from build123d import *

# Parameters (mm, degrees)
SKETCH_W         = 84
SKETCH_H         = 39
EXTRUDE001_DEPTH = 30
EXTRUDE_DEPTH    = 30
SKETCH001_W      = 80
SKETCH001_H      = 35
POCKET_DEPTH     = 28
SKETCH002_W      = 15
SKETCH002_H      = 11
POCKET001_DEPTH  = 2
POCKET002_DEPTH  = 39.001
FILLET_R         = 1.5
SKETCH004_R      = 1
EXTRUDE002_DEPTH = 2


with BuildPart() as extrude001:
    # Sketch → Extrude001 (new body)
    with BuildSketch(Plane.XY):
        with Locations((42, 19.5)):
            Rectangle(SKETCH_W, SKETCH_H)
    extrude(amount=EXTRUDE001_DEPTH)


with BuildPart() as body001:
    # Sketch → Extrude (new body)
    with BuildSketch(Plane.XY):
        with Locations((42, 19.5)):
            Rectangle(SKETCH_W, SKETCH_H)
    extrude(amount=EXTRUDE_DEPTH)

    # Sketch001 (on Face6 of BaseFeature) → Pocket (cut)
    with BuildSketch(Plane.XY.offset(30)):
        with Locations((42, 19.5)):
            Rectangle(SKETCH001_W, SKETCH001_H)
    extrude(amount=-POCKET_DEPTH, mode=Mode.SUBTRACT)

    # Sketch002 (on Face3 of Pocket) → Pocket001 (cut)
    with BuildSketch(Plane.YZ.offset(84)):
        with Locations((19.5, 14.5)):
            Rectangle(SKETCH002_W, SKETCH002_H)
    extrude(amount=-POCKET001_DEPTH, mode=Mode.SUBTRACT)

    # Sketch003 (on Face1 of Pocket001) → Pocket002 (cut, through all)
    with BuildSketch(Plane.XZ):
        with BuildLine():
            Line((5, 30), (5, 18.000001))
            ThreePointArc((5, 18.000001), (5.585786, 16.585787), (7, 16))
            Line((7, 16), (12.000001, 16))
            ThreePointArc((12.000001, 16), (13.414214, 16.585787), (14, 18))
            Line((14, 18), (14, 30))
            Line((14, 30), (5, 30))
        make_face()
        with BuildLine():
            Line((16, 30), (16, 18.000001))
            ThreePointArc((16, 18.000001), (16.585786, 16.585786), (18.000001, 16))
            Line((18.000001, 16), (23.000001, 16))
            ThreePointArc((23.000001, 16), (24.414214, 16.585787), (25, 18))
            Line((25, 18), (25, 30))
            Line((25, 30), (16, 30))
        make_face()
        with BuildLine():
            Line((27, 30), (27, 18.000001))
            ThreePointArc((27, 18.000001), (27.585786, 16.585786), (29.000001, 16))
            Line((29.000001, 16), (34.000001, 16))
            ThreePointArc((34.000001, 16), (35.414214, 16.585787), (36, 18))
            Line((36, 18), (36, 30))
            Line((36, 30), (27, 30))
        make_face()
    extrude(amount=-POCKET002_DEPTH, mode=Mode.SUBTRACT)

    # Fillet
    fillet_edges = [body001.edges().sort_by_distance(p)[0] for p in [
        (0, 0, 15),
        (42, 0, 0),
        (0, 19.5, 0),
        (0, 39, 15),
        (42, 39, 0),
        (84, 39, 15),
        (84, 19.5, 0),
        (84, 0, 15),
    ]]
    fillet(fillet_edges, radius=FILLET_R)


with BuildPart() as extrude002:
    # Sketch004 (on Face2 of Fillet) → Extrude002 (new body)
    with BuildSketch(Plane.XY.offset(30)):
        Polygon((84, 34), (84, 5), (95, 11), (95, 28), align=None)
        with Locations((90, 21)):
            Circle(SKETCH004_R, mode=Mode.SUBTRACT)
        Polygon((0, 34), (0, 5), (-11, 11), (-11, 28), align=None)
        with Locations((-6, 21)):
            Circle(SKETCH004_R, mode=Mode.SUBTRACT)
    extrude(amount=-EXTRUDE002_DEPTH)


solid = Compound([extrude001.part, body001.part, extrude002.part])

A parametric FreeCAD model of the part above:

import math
import FreeCAD as App
import Part
import Sketcher
from FreeCAD import Vector
Q = App.Units.Quantity


def edges_at(feature, points):
    """Names of the edges that pass closest to the given points."""
    edges = feature.Shape.Edges
    near = lambda p: min(range(len(edges)), key=lambda i: edges[i].distToShape(Part.Vertex(*p))[0])
    return sorted({f"Edge{near(p) + 1}" for p in points})

doc = App.newDocument("Part")
params = doc.addObject("Spreadsheet::Sheet", "Params")
for row, (alias, value) in enumerate([
    ("sketch1_width", "84 mm"),
    ("sketch1_height", "39 mm"),
    ("pad1_length", "30 mm"),
    ("sketch2_width", "84 mm"),
    ("sketch2_height", "39 mm"),
    ("pad2_length", "30 mm"),
    ("sketch3_width", "80 mm"),
    ("sketch3_height", "35 mm"),
    ("pocket1_length", "28 mm"),
    ("sketch4_width", "15 mm"),
    ("sketch4_height", "11 mm"),
    ("pocket2_length", "2 mm"),
    ("sketch5_radius", "2 mm"),
    ("sketch5_width", "5.000001 mm"),
    ("sketch5_height", "11.999999 mm"),
    ("fillet_radius", "1.5 mm"),
    ("sketch6_diameter", "2 mm"),
    ("sketch6_height", "29 mm"),
    ("sketch6_height2", "17 mm"),
    ("pad3_length", "2 mm"),
], start=1):
    params.set(f"A{row}", alias)
    params.set(f"B{row}", "=" + value)
    params.setAlias(f"B{row}", alias)

body = doc.addObject("PartDesign::Body", "Body")

# Sketch on XY plane
sketch1 = doc.addObject("Sketcher::SketchObject", "Sketch")
body.addObject(sketch1)
sketch1.AttachmentSupport = (doc.XY_Plane, [""])
sketch1.MapMode = "FlatFace"
sketch1.addGeometry(Part.LineSegment(Vector(0, 39, 0), Vector(0, 0, 0)), False)
sketch1.addGeometry(Part.LineSegment(Vector(0, 0, 0), Vector(84, 0, 0)), False)
sketch1.addGeometry(Part.LineSegment(Vector(84, 0, 0), Vector(84, 39, 0)), False)
sketch1.addGeometry(Part.LineSegment(Vector(84, 39, 0), Vector(0, 39, 0)), False)
sketch1.addConstraint(Sketcher.Constraint("Coincident", 0, 2, 1, 1))
sketch1.addConstraint(Sketcher.Constraint("Coincident", 1, 2, 2, 1))
sketch1.addConstraint(Sketcher.Constraint("Coincident", 2, 2, 3, 1))
sketch1.addConstraint(Sketcher.Constraint("Coincident", 3, 2, 0, 1))
sketch1.addConstraint(Sketcher.Constraint("Vertical", 0))
sketch1.addConstraint(Sketcher.Constraint("Horizontal", 1))
sketch1.addConstraint(Sketcher.Constraint("Vertical", 2))
sketch1.addConstraint(Sketcher.Constraint("Horizontal", 3))
sketch1.addConstraint(Sketcher.Constraint("Coincident", 0, 2, -1, 1))
sketch1.addConstraint(Sketcher.Constraint("DistanceX", 1, 1, 1, 2, Q("84 mm")))
sketch1.addConstraint(Sketcher.Constraint("DistanceY", 0, 2, 0, 1, Q("39 mm")))
sketch1.setExpression("Constraints[9]", "Params.sketch1_width")
sketch1.setExpression("Constraints[10]", "Params.sketch1_height")
pad1 = doc.addObject("PartDesign::Pad", "Pad")
body.addObject(pad1)
pad1.Profile = sketch1
pad1.setExpression("Length", "Params.pad1_length")
body2 = doc.addObject("PartDesign::Body", "Body001")

# Sketch on XY plane
sketch2 = doc.addObject("Sketcher::SketchObject", "Sketch001")
body2.addObject(sketch2)
sketch2.AttachmentSupport = (doc.getObject("XY_Plane001"), [""])
sketch2.MapMode = "FlatFace"
sketch2.addGeometry(Part.LineSegment(Vector(0, 39, 0), Vector(0, 0, 0)), False)
sketch2.addGeometry(Part.LineSegment(Vector(0, 0, 0), Vector(84, 0, 0)), False)
sketch2.addGeometry(Part.LineSegment(Vector(84, 0, 0), Vector(84, 39, 0)), False)
sketch2.addGeometry(Part.LineSegment(Vector(84, 39, 0), Vector(0, 39, 0)), False)
sketch2.addConstraint(Sketcher.Constraint("Coincident", 0, 2, 1, 1))
sketch2.addConstraint(Sketcher.Constraint("Coincident", 1, 2, 2, 1))
sketch2.addConstraint(Sketcher.Constraint("Coincident", 2, 2, 3, 1))
sketch2.addConstraint(Sketcher.Constraint("Coincident", 3, 2, 0, 1))
sketch2.addConstraint(Sketcher.Constraint("Vertical", 0))
sketch2.addConstraint(Sketcher.Constraint("Horizontal", 1))
sketch2.addConstraint(Sketcher.Constraint("Vertical", 2))
sketch2.addConstraint(Sketcher.Constraint("Horizontal", 3))
sketch2.addConstraint(Sketcher.Constraint("Coincident", 0, 2, -1, 1))
sketch2.addConstraint(Sketcher.Constraint("DistanceX", 1, 1, 1, 2, Q("84 mm")))
sketch2.addConstraint(Sketcher.Constraint("DistanceY", 0, 2, 0, 1, Q("39 mm")))
sketch2.setExpression("Constraints[9]", "Params.sketch2_width")
sketch2.setExpression("Constraints[10]", "Params.sketch2_height")
pad2 = doc.addObject("PartDesign::Pad", "Pad001")
body2.addObject(pad2)
pad2.Profile = sketch2
pad2.setExpression("Length", "Params.pad2_length")

# Sketch on XY plane
sketch3 = doc.addObject("Sketcher::SketchObject", "Sketch002")
body2.addObject(sketch3)
sketch3.AttachmentSupport = (doc.getObject("XY_Plane001"), [""])
sketch3.MapMode = "FlatFace"
sketch3.AttachmentOffset = App.Placement(Vector(0, 0, 30), App.Rotation())
sketch3.addGeometry(Part.LineSegment(Vector(2, 37, 0), Vector(2, 2, 0)), False)
sketch3.addGeometry(Part.LineSegment(Vector(2, 2, 0), Vector(82, 2, 0)), False)
sketch3.addGeometry(Part.LineSegment(Vector(82, 2, 0), Vector(82, 37, 0)), False)
sketch3.addGeometry(Part.LineSegment(Vector(82, 37, 0), Vector(2, 37, 0)), False)
sketch3.addConstraint(Sketcher.Constraint("Coincident", 0, 2, 1, 1))
sketch3.addConstraint(Sketcher.Constraint("Coincident", 1, 2, 2, 1))
sketch3.addConstraint(Sketcher.Constraint("Coincident", 2, 2, 3, 1))
sketch3.addConstraint(Sketcher.Constraint("Coincident", 3, 2, 0, 1))
sketch3.addConstraint(Sketcher.Constraint("Vertical", 0))
sketch3.addConstraint(Sketcher.Constraint("Horizontal", 1))
sketch3.addConstraint(Sketcher.Constraint("Vertical", 2))
sketch3.addConstraint(Sketcher.Constraint("Horizontal", 3))
sketch3.addConstraint(Sketcher.Constraint("DistanceX", 1, 1, 1, 2, Q("80 mm")))
sketch3.addConstraint(Sketcher.Constraint("DistanceY", 0, 2, 0, 1, Q("35 mm")))
sketch3.addConstraint(Sketcher.Constraint("DistanceX", -1, 1, 0, 2, Q("2 mm")))
sketch3.addConstraint(Sketcher.Constraint("DistanceY", -1, 1, 0, 2, Q("2 mm")))
sketch3.setExpression("Constraints[8]", "Params.sketch3_width")
sketch3.setExpression("Constraints[9]", "Params.sketch3_height")
pocket1 = doc.addObject("PartDesign::Pocket", "Pocket")
body2.addObject(pocket1)
pocket1.Profile = sketch3
pocket1.setExpression("Length", "Params.pocket1_length")

# Sketch on YZ plane
sketch4 = doc.addObject("Sketcher::SketchObject", "Sketch003")
body2.addObject(sketch4)
sketch4.AttachmentSupport = (doc.getObject("YZ_Plane001"), [""])
sketch4.MapMode = "FlatFace"
sketch4.AttachmentOffset = App.Placement(Vector(0, 0, 84), App.Rotation())
sketch4.addGeometry(Part.LineSegment(Vector(12, 20, 0), Vector(12, 9, 0)), False)
sketch4.addGeometry(Part.LineSegment(Vector(12, 9, 0), Vector(27, 9, 0)), False)
sketch4.addGeometry(Part.LineSegment(Vector(27, 9, 0), Vector(27, 20, 0)), False)
sketch4.addGeometry(Part.LineSegment(Vector(27, 20, 0), Vector(12, 20, 0)), False)
sketch4.addConstraint(Sketcher.Constraint("Coincident", 0, 2, 1, 1))
sketch4.addConstraint(Sketcher.Constraint("Coincident", 1, 2, 2, 1))
sketch4.addConstraint(Sketcher.Constraint("Coincident", 2, 2, 3, 1))
sketch4.addConstraint(Sketcher.Constraint("Coincident", 3, 2, 0, 1))
sketch4.addConstraint(Sketcher.Constraint("Vertical", 0))
sketch4.addConstraint(Sketcher.Constraint("Horizontal", 1))
sketch4.addConstraint(Sketcher.Constraint("Vertical", 2))
sketch4.addConstraint(Sketcher.Constraint("Horizontal", 3))
sketch4.addConstraint(Sketcher.Constraint("DistanceX", 1, 1, 1, 2, Q("15 mm")))
sketch4.addConstraint(Sketcher.Constraint("DistanceY", 0, 2, 0, 1, Q("11 mm")))
sketch4.addConstraint(Sketcher.Constraint("DistanceX", -1, 1, 0, 2, Q("12 mm")))
sketch4.addConstraint(Sketcher.Constraint("DistanceY", -1, 1, 0, 2, Q("9 mm")))
sketch4.setExpression("Constraints[8]", "Params.sketch4_width")
sketch4.setExpression("Constraints[9]", "Params.sketch4_height")
pocket2 = doc.addObject("PartDesign::Pocket", "Pocket001")
body2.addObject(pocket2)
pocket2.Profile = sketch4
pocket2.setExpression("Length", "Params.pocket2_length")

# Sketch on XZ plane
sketch5 = doc.addObject("Sketcher::SketchObject", "Sketch004")
body2.addObject(sketch5)
sketch5.AttachmentSupport = (doc.getObject("XZ_Plane001"), [""])
sketch5.MapMode = "FlatFace"
sketch5.addGeometry(Part.LineSegment(Vector(5, 30, 0), Vector(5, 18, 0)), False)
sketch5.addGeometry(Part.ArcOfCircle(Part.Circle(Vector(7, 18, 0), Vector(0, 0, 1), 2), math.radians(180), math.radians(270)), False)
sketch5.addGeometry(Part.LineSegment(Vector(7, 16, 0), Vector(12, 16, 0)), False)
sketch5.addGeometry(Part.ArcOfCircle(Part.Circle(Vector(12, 18, 0), Vector(0, 0, 1), 2), math.radians(-90), math.radians(0)), False)
sketch5.addGeometry(Part.LineSegment(Vector(14, 18, 0), Vector(14, 30, 0)), False)
sketch5.addGeometry(Part.LineSegment(Vector(14, 30, 0), Vector(5, 30, 0)), False)
sketch5.addGeometry(Part.LineSegment(Vector(16, 30, 0), Vector(16, 18, 0)), False)
sketch5.addGeometry(Part.ArcOfCircle(Part.Circle(Vector(18, 18, 0), Vector(0, 0, 1), 2), math.radians(180), math.radians(270)), False)
sketch5.addGeometry(Part.LineSegment(Vector(18, 16, 0), Vector(23, 16, 0)), False)
sketch5.addGeometry(Part.ArcOfCircle(Part.Circle(Vector(23, 18, 0), Vector(0, 0, 1), 2), math.radians(-90), math.radians(0)), False)
sketch5.addGeometry(Part.LineSegment(Vector(25, 18, 0), Vector(25, 30, 0)), False)
sketch5.addGeometry(Part.LineSegment(Vector(25, 30, 0), Vector(16, 30, 0)), False)
sketch5.addGeometry(Part.LineSegment(Vector(27, 30, 0), Vector(27, 18, 0)), False)
sketch5.addGeometry(Part.ArcOfCircle(Part.Circle(Vector(29, 18, 0), Vector(0, 0, 1), 2), math.radians(180), math.radians(270)), False)
sketch5.addGeometry(Part.LineSegment(Vector(29, 16, 0), Vector(34, 16, 0)), False)
sketch5.addGeometry(Part.ArcOfCircle(Part.Circle(Vector(34, 18, 0), Vector(0, 0, 1), 2), math.radians(-90), math.radians(0)), False)
sketch5.addGeometry(Part.LineSegment(Vector(36, 18, 0), Vector(36, 30, 0)), False)
sketch5.addGeometry(Part.LineSegment(Vector(36, 30, 0), Vector(27, 30, 0)), False)
sketch5.addConstraint(Sketcher.Constraint("Tangent", 0, 2, 1, 1))
sketch5.addConstraint(Sketcher.Constraint("Tangent", 1, 2, 2, 1))
sketch5.addConstraint(Sketcher.Constraint("Tangent", 2, 2, 3, 1))
sketch5.addConstraint(Sketcher.Constraint("Tangent", 3, 2, 4, 1))
sketch5.addConstraint(Sketcher.Constraint("Coincident", 4, 2, 5, 1))
sketch5.addConstraint(Sketcher.Constraint("Coincident", 5, 2, 0, 1))
sketch5.addConstraint(Sketcher.Constraint("Tangent", 6, 2, 7, 1))
sketch5.addConstraint(Sketcher.Constraint("Tangent", 7, 2, 8, 1))
sketch5.addConstraint(Sketcher.Constraint("Tangent", 8, 2, 9, 1))
sketch5.addConstraint(Sketcher.Constraint("Tangent", 9, 2, 10, 1))
sketch5.addConstraint(Sketcher.Constraint("Coincident", 10, 2, 11, 1))
sketch5.addConstraint(Sketcher.Constraint("Coincident", 11, 2, 6, 1))
sketch5.addConstraint(Sketcher.Constraint("Tangent", 12, 2, 13, 1))
sketch5.addConstraint(Sketcher.Constraint("Tangent", 13, 2, 14, 1))
sketch5.addConstraint(Sketcher.Constraint("Tangent", 14, 2, 15, 1))
sketch5.addConstraint(Sketcher.Constraint("Tangent", 15, 2, 16, 1))
sketch5.addConstraint(Sketcher.Constraint("Coincident", 16, 2, 17, 1))
sketch5.addConstraint(Sketcher.Constraint("Coincident", 17, 2, 12, 1))
sketch5.addConstraint(Sketcher.Constraint("Vertical", 0))
sketch5.addConstraint(Sketcher.Constraint("Horizontal", 2))
sketch5.addConstraint(Sketcher.Constraint("Vertical", 4))
sketch5.addConstraint(Sketcher.Constraint("Horizontal", 5))
sketch5.addConstraint(Sketcher.Constraint("Vertical", 6))
sketch5.addConstraint(Sketcher.Constraint("Horizontal", 8))
sketch5.addConstraint(Sketcher.Constraint("Vertical", 10))
sketch5.addConstraint(Sketcher.Constraint("Horizontal", 11))
sketch5.addConstraint(Sketcher.Constraint("Vertical", 12))
sketch5.addConstraint(Sketcher.Constraint("Horizontal", 14))
sketch5.addConstraint(Sketcher.Constraint("Vertical", 16))
sketch5.addConstraint(Sketcher.Constraint("Horizontal", 17))
sketch5.addConstraint(Sketcher.Constraint("Equal", 1, 3))
sketch5.addConstraint(Sketcher.Constraint("Equal", 3, 7))
sketch5.addConstraint(Sketcher.Constraint("Equal", 7, 9))
sketch5.addConstraint(Sketcher.Constraint("Equal", 9, 13))
sketch5.addConstraint(Sketcher.Constraint("Equal", 13, 15))
sketch5.addConstraint(Sketcher.Constraint("Horizontal", 3, 3, 7, 3))
sketch5.addConstraint(Sketcher.Constraint("Horizontal", 9, 3, 13, 3))
sketch5.addConstraint(Sketcher.Constraint("Horizontal", 5, 2, 10, 2))
sketch5.addConstraint(Sketcher.Constraint("Horizontal", 11, 2, 16, 2))
sketch5.addConstraint(Sketcher.Constraint("Equal", 2, 8))
sketch5.addConstraint(Sketcher.Constraint("Equal", 8, 14))
sketch5.addConstraint(Sketcher.Constraint("Radius", 1, Q("2 mm")))
sketch5.addConstraint(Sketcher.Constraint("DistanceX", 2, 1, 2, 2, Q("5.000001 mm")))
sketch5.addConstraint(Sketcher.Constraint("DistanceY", 0, 2, 0, 1, Q("11.999999 mm")))
sketch5.addConstraint(Sketcher.Constraint("DistanceX", -1, 1, 1, 3, Q("7 mm")))
sketch5.addConstraint(Sketcher.Constraint("DistanceY", -1, 1, 1, 3, Q("18 mm")))
sketch5.addConstraint(Sketcher.Constraint("DistanceX", -1, 1, 7, 3, Q("17.999999 mm")))
sketch5.addConstraint(Sketcher.Constraint("DistanceX", -1, 1, 13, 3, Q("28.999999 mm")))
sketch5.setExpression("Constraints[41]", "Params.sketch5_radius")
sketch5.setExpression("Constraints[42]", "Params.sketch5_width")
sketch5.setExpression("Constraints[43]", "Params.sketch5_height")
pocket3 = doc.addObject("PartDesign::Pocket", "Pocket002")
body2.addObject(pocket3)
pocket3.Profile = sketch5
pocket3.Type = "ThroughAll"
doc.recompute()

fillet = doc.addObject("PartDesign::Fillet", "Fillet")
body2.addObject(fillet)
fillet.Base = (pocket3, edges_at(pocket3, [
    (0, 0, 15),
    (42, 0, 0),
    (0, 19.5, 0),
    (0, 39, 15),
    (42, 39, 0),
    (84, 39, 15),
    (84, 19.5, 0),
    (84, 0, 15),
]))
fillet.setExpression("Radius", "Params.fillet_radius")
body3 = doc.addObject("PartDesign::Body", "Body002")
body3.AllowCompound = True

# Sketch on XY plane
sketch6 = doc.addObject("Sketcher::SketchObject", "Sketch005")
body3.addObject(sketch6)
sketch6.AttachmentSupport = (doc.getObject("XY_Plane002"), [""])
sketch6.MapMode = "FlatFace"
sketch6.AttachmentOffset = App.Placement(Vector(0, 0, 30), App.Rotation())
sketch6.addGeometry(Part.LineSegment(Vector(84, 34, 0), Vector(84, 5, 0)), False)
sketch6.addGeometry(Part.LineSegment(Vector(84, 5, 0), Vector(95, 11, 0)), False)
sketch6.addGeometry(Part.LineSegment(Vector(95, 11, 0), Vector(95, 28, 0)), False)
sketch6.addGeometry(Part.LineSegment(Vector(95, 28, 0), Vector(84, 34, 0)), False)
sketch6.addGeometry(Part.Circle(Vector(90, 21, 0), Vector(0, 0, 1), 1), False)
sketch6.addGeometry(Part.LineSegment(Vector(0, 5, 0), Vector(0, 34, 0)), False)
sketch6.addGeometry(Part.LineSegment(Vector(0, 34, 0), Vector(-11, 28, 0)), False)
sketch6.addGeometry(Part.LineSegment(Vector(-11, 28, 0), Vector(-11, 11, 0)), False)
sketch6.addGeometry(Part.LineSegment(Vector(-11, 11, 0), Vector(0, 5, 0)), False)
sketch6.addGeometry(Part.Circle(Vector(-6, 21, 0), Vector(0, 0, 1), 1), False)
sketch6.addConstraint(Sketcher.Constraint("Coincident", 0, 2, 1, 1))
sketch6.addConstraint(Sketcher.Constraint("Coincident", 1, 2, 2, 1))
sketch6.addConstraint(Sketcher.Constraint("Coincident", 2, 2, 3, 1))
sketch6.addConstraint(Sketcher.Constraint("Coincident", 3, 2, 0, 1))
sketch6.addConstraint(Sketcher.Constraint("Coincident", 5, 2, 6, 1))
sketch6.addConstraint(Sketcher.Constraint("Coincident", 6, 2, 7, 1))
sketch6.addConstraint(Sketcher.Constraint("Coincident", 7, 2, 8, 1))
sketch6.addConstraint(Sketcher.Constraint("Coincident", 8, 2, 5, 1))
sketch6.addConstraint(Sketcher.Constraint("Vertical", 0))
sketch6.addConstraint(Sketcher.Constraint("Vertical", 2))
sketch6.addConstraint(Sketcher.Constraint("Vertical", 5))
sketch6.addConstraint(Sketcher.Constraint("Vertical", 7))
sketch6.addConstraint(Sketcher.Constraint("Equal", 4, 9))
sketch6.addConstraint(Sketcher.Constraint("PointOnObject", 5, 2, -2))
sketch6.addConstraint(Sketcher.Constraint("Parallel", 1, 6))
sketch6.addConstraint(Sketcher.Constraint("Parallel", 3, 8))
sketch6.addConstraint(Sketcher.Constraint("Horizontal", 4, 3, 9, 3))
sketch6.addConstraint(Sketcher.Constraint("Horizontal", 3, 2, 5, 2))
sketch6.addConstraint(Sketcher.Constraint("Horizontal", 2, 2, 6, 2))
sketch6.addConstraint(Sketcher.Constraint("Horizontal", 1, 2, 7, 2))
sketch6.addConstraint(Sketcher.Constraint("Horizontal", 0, 2, 8, 2))
sketch6.addConstraint(Sketcher.Constraint("Diameter", 4, Q("2 mm")))
sketch6.addConstraint(Sketcher.Constraint("DistanceY", 0, 2, 0, 1, Q("29 mm")))
sketch6.addConstraint(Sketcher.Constraint("DistanceY", 2, 1, 2, 2, Q("17 mm")))
sketch6.addConstraint(Sketcher.Constraint("DistanceX", -1, 1, 4, 3, Q("90 mm")))
sketch6.addConstraint(Sketcher.Constraint("DistanceY", -1, 1, 4, 3, Q("21 mm")))
sketch6.addConstraint(Sketcher.Constraint("DistanceX", 9, 3, -1, 1, Q("6 mm")))
sketch6.addConstraint(Sketcher.Constraint("DistanceX", -1, 1, 0, 2, Q("84 mm")))
sketch6.addConstraint(Sketcher.Constraint("DistanceY", -1, 1, 0, 2, Q("5 mm")))
sketch6.addConstraint(Sketcher.Constraint("DistanceX", -1, 1, 1, 2, Q("95 mm")))
sketch6.setExpression("Constraints[21]", "Params.sketch6_diameter")
sketch6.setExpression("Constraints[22]", "Params.sketch6_height")
sketch6.setExpression("Constraints[23]", "Params.sketch6_height2")
pad3 = doc.addObject("PartDesign::Pad", "Pad002")
body3.addObject(pad3)
pad3.Profile = sketch6
pad3.setExpression("Length", "Params.pad3_length")
pad3.Reversed = True

doc.recompute()
